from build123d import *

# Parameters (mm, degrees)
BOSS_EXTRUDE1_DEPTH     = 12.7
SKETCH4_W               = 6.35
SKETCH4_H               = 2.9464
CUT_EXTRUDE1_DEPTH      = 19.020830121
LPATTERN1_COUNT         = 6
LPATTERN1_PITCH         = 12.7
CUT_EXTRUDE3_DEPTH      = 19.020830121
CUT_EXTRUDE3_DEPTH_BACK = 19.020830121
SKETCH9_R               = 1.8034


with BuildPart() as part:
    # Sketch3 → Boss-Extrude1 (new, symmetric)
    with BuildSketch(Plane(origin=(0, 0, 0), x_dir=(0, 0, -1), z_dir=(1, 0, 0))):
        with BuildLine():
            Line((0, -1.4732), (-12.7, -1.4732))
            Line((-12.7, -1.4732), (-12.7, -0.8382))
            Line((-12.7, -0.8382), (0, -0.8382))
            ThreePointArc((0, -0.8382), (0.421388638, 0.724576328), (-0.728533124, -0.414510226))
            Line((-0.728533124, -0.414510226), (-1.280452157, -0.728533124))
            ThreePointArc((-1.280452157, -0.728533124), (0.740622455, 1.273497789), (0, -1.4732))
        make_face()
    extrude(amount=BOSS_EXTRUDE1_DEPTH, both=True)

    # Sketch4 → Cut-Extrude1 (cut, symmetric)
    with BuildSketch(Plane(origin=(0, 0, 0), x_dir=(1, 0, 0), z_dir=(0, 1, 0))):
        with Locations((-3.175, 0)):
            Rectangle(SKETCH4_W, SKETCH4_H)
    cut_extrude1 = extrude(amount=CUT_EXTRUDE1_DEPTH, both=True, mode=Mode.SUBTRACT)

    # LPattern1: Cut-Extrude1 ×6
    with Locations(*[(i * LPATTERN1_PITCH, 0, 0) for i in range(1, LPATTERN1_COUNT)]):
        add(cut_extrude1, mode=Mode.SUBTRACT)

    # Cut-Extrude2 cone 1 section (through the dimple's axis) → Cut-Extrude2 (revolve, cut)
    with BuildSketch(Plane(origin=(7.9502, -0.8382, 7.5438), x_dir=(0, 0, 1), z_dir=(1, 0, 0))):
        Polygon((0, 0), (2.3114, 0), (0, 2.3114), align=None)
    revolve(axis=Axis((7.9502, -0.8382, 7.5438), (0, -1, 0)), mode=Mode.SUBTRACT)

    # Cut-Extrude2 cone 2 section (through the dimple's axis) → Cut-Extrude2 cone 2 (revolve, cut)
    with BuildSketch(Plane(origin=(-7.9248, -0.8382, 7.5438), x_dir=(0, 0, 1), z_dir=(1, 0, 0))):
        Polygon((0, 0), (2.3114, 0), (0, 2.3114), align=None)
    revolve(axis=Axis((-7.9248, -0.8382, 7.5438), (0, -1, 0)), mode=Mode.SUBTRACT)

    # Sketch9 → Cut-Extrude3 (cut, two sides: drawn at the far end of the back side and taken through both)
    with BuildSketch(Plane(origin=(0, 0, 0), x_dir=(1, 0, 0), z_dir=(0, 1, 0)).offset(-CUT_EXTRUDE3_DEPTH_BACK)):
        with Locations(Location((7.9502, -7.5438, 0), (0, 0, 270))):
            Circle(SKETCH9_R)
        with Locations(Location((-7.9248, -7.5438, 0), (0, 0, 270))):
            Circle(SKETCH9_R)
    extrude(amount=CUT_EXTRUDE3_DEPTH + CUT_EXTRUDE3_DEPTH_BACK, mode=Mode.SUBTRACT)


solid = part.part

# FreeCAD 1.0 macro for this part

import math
import FreeCAD as App
import Part
import Sketcher

V = App.Vector
Q = App.Units.Quantity


def add_polygon(sketch, points):
    """Adds a closed chain of lines whose ends are joined by coincident constraints."""
    first, n = sketch.GeometryCount, len(points)
    for a, b in zip(points, points[1:] + points[:1]):
        sketch.addGeometry(Part.LineSegment(App.Vector(*a, 0), App.Vector(*b, 0)), False)
    for i in range(n):
        sketch.addConstraint(Sketcher.Constraint("Coincident", first + i, 2, first + (i + 1) % n, 1))

doc = App.newDocument("Part")
body = doc.addObject("PartDesign::Body", "Body")

# Sketch on YZ plane
sketch1 = body.newObject("Sketcher::SketchObject", "Sketch")
sketch1.AttachmentSupport = (doc.getObject("YZ_Plane"), [""])
sketch1.MapMode = "FlatFace"
sketch1.addGeometry([
    Part.LineSegment(V(-1.5, 12.7, 0), V(-1.5, 0, 0)),  # 0
    Part.ArcOfCircle(Part.Circle(V(0, 0, 0), V(0, 0, 1), 1.5), math.radians(180), math.radians(480)),  # 1
    Part.LineSegment(V(-0.7, 1.3, 0), V(-0.4, 0.7, 0)),  # 2
    Part.ArcOfCircle(Part.Circle(V(0, 0, 0), V(0, 0, 1), 0.8), math.radians(180), math.radians(480)),  # 3
    Part.LineSegment(V(-0.8, 0, 0), V(-0.8, 12.7, 0)),  # 4
    Part.LineSegment(V(-0.8, 12.7, 0), V(-1.5, 12.7, 0)),  # 5
], False)
sketch1.addConstraint([
    Sketcher.Constraint("Tangent", 0, 2, 1, 1),
    Sketcher.Constraint("Coincident", 1, 2, 2, 1),
    Sketcher.Constraint("Coincident", 2, 2, 3, 2),
    Sketcher.Constraint("Tangent", 3, 1, 4, 1),
    Sketcher.Constraint("Coincident", 4, 2, 5, 1),
    Sketcher.Constraint("Coincident", 5, 2, 0, 1),
    Sketcher.Constraint("Vertical", 0),
    Sketcher.Constraint("Vertical", 4),
    Sketcher.Constraint("Horizontal", 5),
    Sketcher.Constraint("Coincident", 1, 3, -1, 1),
    Sketcher.Constraint("Coincident", 3, 3, -1, 1),
    Sketcher.Constraint("DistanceY", 0, 2, 0, 1, Q("0.5 in")),
    Sketcher.Constraint("Radius", 1, Q("0.058 in")),
    Sketcher.Constraint("Radius", 3, Q("0.033 in")),
    Sketcher.Constraint("DistanceX", 2, 2, -1, 1, 0.41451),
    Sketcher.Constraint("DistanceY", 2, 2, 1, 2, 0.551919),
])
pad1 = body.newObject("PartDesign::Pad", "Pad")
pad1.Profile = sketch1
pad1.Length = Q("1 in")
pad1.Midplane = True

# Sketch on XZ plane
sketch2 = body.newObject("Sketcher::SketchObject", "Sketch001")
sketch2.AttachmentSupport = (doc.getObject("XZ_Plane"), [""])
sketch2.MapMode = "FlatFace"
add_polygon(sketch2, [(-6.3, -1.5), (-6.3, 1.5), (0, 1.5), (0, -1.5)])  # lines 0-3
sketch2.addConstraint([
    Sketcher.Constraint("Vertical", 0),
    Sketcher.Constraint("Horizontal", 1),
    Sketcher.Constraint("Vertical", 2),
    Sketcher.Constraint("Horizontal", 3),
    Sketcher.Constraint("Symmetric", 1, 2, 2, 2, -1, 1),
    Sketcher.Constraint("DistanceX", 1, 1, 1, 2, Q("0.25 in")),
    Sketcher.Constraint("DistanceY", 0, 1, 0, 2, Q("0.116 in")),
])
pocket1 = body.newObject("PartDesign::Pocket", "Pocket")
pocket1.Profile = sketch2
pocket1.Length = 38.04166
pocket1.Midplane = True
doc.recompute()

linearpattern = body.newObject("PartDesign::LinearPattern", "LinearPattern")
linearpattern.Originals = [pocket1]
linearpattern.Direction = (doc.getObject("X_Axis"), [""])
linearpattern.Mode = "offset"
linearpattern.Offset = Q("0.5 in")
linearpattern.Occurrences = 6
body.Tip = linearpattern

# Sketch on YZ plane
sketch3 = body.newObject("Sketcher::SketchObject", "Sketch002")
sketch3.AttachmentSupport = (doc.getObject("YZ_Plane"), [""])
sketch3.MapMode = "FlatFace"
sketch3.AttachmentOffset = App.Placement(V(0, 0, 0.313 * 25.4), App.Rotation())
add_polygon(sketch3, [(-0.8, 7.5), (-0.8, 9.9), (-3.1, 7.5)])  # lines 0-2
sketch3.addGeometry(Part.LineSegment(V(-0.8, 7.5, 0), V(-3.1, 7.5, 0)), True)  # axis
sketch3.addConstraint([
    Sketcher.Constraint("Vertical", 0),
    Sketcher.Constraint("Horizontal", 2),
    Sketcher.Constraint("Horizontal", 3),
    Sketcher.Constraint("Coincident", 3, 1, 2, 2),
    Sketcher.Constraint("Equal", 2, 3),
    Sketcher.Constraint("Equal", 3, 0),
    Sketcher.Constraint("DistanceX", 2, 1, 2, 2, Q("0.091 in")),
    Sketcher.Constraint("DistanceX", 0, 2, -1, 1, Q("0.033 in")),
    Sketcher.Constraint("DistanceY", -1, 1, 0, 2, Q("0.388 in")),
])
groove = body.newObject("PartDesign::Groove", "Groove")
groove.Profile = sketch3
groove.ReferenceAxis = (sketch3, ["Axis0"])
groove.Angle = 360

# Sketch on YZ plane
sketch4 = body.newObject("Sketcher::SketchObject", "Sketch003")
sketch4.AttachmentSupport = (doc.getObject("YZ_Plane"), [""])
sketch4.MapMode = "FlatFace"
sketch4.AttachmentOffset = App.Placement(V(0, 0, -0.312 * 25.4), App.Rotation())
add_polygon(sketch4, [(-0.8, 7.5), (-0.8, 9.9), (-3.1, 7.5)])  # lines 0-2
sketch4.addGeometry(Part.LineSegment(V(-0.8, 7.5, 0), V(-3.1, 7.5, 0)), True)  # axis
sketch4.addConstraint([
    Sketcher.Constraint("Vertical", 0),
    Sketcher.Constraint("Horizontal", 2),
    Sketcher.Constraint("Horizontal", 3),
    Sketcher.Constraint("Coincident", 3, 1, 2, 2),
    Sketcher.Constraint("Equal", 2, 3),
    Sketcher.Constraint("Equal", 3, 0),
    Sketcher.Constraint("DistanceX", 2, 1, 2, 2, Q("0.091 in")),
    Sketcher.Constraint("DistanceX", 0, 2, -1, 1, Q("0.033 in")),
    Sketcher.Constraint("DistanceY", -1, 1, 0, 2, Q("0.388 in")),
])
groove2 = body.newObject("PartDesign::Groove", "Groove001")
groove2.Profile = sketch4
groove2.ReferenceAxis = (sketch4, ["Axis0"])
groove2.Angle = 360

# Sketch on XZ plane
sketch5 = body.newObject("Sketcher::SketchObject", "Sketch004")
sketch5.AttachmentSupport = (doc.getObject("XZ_Plane"), [""])
sketch5.MapMode = "FlatFace"
sketch5.addGeometry([
    Part.Circle(V(8, 7.5, 0), V(0, 0, 1), 1.8),
    Part.Circle(V(-7.9, 7.5, 0), V(0, 0, 1), 1.8),
], False)
sketch5.addConstraint([
    Sketcher.Constraint("Equal", 0, 1),
    Sketcher.Constraint("Horizontal", 0, 3, 1, 3),
    Sketcher.Constraint("Diameter", 0, Q("0.142 in")),
    Sketcher.Constraint("DistanceX", -1, 1, 0, 3, Q("0.313 in")),
    Sketcher.Constraint("DistanceY", -1, 1, 0, 3, Q("0.297 in")),
    Sketcher.Constraint("DistanceX", 1, 3, -1, 1, Q("0.312 in")),
])
pocket2 = body.newObject("PartDesign::Pocket", "Pocket001")
pocket2.Profile = sketch5
pocket2.Type = "ThroughAll"
pocket2.Midplane = True

doc.recompute()
